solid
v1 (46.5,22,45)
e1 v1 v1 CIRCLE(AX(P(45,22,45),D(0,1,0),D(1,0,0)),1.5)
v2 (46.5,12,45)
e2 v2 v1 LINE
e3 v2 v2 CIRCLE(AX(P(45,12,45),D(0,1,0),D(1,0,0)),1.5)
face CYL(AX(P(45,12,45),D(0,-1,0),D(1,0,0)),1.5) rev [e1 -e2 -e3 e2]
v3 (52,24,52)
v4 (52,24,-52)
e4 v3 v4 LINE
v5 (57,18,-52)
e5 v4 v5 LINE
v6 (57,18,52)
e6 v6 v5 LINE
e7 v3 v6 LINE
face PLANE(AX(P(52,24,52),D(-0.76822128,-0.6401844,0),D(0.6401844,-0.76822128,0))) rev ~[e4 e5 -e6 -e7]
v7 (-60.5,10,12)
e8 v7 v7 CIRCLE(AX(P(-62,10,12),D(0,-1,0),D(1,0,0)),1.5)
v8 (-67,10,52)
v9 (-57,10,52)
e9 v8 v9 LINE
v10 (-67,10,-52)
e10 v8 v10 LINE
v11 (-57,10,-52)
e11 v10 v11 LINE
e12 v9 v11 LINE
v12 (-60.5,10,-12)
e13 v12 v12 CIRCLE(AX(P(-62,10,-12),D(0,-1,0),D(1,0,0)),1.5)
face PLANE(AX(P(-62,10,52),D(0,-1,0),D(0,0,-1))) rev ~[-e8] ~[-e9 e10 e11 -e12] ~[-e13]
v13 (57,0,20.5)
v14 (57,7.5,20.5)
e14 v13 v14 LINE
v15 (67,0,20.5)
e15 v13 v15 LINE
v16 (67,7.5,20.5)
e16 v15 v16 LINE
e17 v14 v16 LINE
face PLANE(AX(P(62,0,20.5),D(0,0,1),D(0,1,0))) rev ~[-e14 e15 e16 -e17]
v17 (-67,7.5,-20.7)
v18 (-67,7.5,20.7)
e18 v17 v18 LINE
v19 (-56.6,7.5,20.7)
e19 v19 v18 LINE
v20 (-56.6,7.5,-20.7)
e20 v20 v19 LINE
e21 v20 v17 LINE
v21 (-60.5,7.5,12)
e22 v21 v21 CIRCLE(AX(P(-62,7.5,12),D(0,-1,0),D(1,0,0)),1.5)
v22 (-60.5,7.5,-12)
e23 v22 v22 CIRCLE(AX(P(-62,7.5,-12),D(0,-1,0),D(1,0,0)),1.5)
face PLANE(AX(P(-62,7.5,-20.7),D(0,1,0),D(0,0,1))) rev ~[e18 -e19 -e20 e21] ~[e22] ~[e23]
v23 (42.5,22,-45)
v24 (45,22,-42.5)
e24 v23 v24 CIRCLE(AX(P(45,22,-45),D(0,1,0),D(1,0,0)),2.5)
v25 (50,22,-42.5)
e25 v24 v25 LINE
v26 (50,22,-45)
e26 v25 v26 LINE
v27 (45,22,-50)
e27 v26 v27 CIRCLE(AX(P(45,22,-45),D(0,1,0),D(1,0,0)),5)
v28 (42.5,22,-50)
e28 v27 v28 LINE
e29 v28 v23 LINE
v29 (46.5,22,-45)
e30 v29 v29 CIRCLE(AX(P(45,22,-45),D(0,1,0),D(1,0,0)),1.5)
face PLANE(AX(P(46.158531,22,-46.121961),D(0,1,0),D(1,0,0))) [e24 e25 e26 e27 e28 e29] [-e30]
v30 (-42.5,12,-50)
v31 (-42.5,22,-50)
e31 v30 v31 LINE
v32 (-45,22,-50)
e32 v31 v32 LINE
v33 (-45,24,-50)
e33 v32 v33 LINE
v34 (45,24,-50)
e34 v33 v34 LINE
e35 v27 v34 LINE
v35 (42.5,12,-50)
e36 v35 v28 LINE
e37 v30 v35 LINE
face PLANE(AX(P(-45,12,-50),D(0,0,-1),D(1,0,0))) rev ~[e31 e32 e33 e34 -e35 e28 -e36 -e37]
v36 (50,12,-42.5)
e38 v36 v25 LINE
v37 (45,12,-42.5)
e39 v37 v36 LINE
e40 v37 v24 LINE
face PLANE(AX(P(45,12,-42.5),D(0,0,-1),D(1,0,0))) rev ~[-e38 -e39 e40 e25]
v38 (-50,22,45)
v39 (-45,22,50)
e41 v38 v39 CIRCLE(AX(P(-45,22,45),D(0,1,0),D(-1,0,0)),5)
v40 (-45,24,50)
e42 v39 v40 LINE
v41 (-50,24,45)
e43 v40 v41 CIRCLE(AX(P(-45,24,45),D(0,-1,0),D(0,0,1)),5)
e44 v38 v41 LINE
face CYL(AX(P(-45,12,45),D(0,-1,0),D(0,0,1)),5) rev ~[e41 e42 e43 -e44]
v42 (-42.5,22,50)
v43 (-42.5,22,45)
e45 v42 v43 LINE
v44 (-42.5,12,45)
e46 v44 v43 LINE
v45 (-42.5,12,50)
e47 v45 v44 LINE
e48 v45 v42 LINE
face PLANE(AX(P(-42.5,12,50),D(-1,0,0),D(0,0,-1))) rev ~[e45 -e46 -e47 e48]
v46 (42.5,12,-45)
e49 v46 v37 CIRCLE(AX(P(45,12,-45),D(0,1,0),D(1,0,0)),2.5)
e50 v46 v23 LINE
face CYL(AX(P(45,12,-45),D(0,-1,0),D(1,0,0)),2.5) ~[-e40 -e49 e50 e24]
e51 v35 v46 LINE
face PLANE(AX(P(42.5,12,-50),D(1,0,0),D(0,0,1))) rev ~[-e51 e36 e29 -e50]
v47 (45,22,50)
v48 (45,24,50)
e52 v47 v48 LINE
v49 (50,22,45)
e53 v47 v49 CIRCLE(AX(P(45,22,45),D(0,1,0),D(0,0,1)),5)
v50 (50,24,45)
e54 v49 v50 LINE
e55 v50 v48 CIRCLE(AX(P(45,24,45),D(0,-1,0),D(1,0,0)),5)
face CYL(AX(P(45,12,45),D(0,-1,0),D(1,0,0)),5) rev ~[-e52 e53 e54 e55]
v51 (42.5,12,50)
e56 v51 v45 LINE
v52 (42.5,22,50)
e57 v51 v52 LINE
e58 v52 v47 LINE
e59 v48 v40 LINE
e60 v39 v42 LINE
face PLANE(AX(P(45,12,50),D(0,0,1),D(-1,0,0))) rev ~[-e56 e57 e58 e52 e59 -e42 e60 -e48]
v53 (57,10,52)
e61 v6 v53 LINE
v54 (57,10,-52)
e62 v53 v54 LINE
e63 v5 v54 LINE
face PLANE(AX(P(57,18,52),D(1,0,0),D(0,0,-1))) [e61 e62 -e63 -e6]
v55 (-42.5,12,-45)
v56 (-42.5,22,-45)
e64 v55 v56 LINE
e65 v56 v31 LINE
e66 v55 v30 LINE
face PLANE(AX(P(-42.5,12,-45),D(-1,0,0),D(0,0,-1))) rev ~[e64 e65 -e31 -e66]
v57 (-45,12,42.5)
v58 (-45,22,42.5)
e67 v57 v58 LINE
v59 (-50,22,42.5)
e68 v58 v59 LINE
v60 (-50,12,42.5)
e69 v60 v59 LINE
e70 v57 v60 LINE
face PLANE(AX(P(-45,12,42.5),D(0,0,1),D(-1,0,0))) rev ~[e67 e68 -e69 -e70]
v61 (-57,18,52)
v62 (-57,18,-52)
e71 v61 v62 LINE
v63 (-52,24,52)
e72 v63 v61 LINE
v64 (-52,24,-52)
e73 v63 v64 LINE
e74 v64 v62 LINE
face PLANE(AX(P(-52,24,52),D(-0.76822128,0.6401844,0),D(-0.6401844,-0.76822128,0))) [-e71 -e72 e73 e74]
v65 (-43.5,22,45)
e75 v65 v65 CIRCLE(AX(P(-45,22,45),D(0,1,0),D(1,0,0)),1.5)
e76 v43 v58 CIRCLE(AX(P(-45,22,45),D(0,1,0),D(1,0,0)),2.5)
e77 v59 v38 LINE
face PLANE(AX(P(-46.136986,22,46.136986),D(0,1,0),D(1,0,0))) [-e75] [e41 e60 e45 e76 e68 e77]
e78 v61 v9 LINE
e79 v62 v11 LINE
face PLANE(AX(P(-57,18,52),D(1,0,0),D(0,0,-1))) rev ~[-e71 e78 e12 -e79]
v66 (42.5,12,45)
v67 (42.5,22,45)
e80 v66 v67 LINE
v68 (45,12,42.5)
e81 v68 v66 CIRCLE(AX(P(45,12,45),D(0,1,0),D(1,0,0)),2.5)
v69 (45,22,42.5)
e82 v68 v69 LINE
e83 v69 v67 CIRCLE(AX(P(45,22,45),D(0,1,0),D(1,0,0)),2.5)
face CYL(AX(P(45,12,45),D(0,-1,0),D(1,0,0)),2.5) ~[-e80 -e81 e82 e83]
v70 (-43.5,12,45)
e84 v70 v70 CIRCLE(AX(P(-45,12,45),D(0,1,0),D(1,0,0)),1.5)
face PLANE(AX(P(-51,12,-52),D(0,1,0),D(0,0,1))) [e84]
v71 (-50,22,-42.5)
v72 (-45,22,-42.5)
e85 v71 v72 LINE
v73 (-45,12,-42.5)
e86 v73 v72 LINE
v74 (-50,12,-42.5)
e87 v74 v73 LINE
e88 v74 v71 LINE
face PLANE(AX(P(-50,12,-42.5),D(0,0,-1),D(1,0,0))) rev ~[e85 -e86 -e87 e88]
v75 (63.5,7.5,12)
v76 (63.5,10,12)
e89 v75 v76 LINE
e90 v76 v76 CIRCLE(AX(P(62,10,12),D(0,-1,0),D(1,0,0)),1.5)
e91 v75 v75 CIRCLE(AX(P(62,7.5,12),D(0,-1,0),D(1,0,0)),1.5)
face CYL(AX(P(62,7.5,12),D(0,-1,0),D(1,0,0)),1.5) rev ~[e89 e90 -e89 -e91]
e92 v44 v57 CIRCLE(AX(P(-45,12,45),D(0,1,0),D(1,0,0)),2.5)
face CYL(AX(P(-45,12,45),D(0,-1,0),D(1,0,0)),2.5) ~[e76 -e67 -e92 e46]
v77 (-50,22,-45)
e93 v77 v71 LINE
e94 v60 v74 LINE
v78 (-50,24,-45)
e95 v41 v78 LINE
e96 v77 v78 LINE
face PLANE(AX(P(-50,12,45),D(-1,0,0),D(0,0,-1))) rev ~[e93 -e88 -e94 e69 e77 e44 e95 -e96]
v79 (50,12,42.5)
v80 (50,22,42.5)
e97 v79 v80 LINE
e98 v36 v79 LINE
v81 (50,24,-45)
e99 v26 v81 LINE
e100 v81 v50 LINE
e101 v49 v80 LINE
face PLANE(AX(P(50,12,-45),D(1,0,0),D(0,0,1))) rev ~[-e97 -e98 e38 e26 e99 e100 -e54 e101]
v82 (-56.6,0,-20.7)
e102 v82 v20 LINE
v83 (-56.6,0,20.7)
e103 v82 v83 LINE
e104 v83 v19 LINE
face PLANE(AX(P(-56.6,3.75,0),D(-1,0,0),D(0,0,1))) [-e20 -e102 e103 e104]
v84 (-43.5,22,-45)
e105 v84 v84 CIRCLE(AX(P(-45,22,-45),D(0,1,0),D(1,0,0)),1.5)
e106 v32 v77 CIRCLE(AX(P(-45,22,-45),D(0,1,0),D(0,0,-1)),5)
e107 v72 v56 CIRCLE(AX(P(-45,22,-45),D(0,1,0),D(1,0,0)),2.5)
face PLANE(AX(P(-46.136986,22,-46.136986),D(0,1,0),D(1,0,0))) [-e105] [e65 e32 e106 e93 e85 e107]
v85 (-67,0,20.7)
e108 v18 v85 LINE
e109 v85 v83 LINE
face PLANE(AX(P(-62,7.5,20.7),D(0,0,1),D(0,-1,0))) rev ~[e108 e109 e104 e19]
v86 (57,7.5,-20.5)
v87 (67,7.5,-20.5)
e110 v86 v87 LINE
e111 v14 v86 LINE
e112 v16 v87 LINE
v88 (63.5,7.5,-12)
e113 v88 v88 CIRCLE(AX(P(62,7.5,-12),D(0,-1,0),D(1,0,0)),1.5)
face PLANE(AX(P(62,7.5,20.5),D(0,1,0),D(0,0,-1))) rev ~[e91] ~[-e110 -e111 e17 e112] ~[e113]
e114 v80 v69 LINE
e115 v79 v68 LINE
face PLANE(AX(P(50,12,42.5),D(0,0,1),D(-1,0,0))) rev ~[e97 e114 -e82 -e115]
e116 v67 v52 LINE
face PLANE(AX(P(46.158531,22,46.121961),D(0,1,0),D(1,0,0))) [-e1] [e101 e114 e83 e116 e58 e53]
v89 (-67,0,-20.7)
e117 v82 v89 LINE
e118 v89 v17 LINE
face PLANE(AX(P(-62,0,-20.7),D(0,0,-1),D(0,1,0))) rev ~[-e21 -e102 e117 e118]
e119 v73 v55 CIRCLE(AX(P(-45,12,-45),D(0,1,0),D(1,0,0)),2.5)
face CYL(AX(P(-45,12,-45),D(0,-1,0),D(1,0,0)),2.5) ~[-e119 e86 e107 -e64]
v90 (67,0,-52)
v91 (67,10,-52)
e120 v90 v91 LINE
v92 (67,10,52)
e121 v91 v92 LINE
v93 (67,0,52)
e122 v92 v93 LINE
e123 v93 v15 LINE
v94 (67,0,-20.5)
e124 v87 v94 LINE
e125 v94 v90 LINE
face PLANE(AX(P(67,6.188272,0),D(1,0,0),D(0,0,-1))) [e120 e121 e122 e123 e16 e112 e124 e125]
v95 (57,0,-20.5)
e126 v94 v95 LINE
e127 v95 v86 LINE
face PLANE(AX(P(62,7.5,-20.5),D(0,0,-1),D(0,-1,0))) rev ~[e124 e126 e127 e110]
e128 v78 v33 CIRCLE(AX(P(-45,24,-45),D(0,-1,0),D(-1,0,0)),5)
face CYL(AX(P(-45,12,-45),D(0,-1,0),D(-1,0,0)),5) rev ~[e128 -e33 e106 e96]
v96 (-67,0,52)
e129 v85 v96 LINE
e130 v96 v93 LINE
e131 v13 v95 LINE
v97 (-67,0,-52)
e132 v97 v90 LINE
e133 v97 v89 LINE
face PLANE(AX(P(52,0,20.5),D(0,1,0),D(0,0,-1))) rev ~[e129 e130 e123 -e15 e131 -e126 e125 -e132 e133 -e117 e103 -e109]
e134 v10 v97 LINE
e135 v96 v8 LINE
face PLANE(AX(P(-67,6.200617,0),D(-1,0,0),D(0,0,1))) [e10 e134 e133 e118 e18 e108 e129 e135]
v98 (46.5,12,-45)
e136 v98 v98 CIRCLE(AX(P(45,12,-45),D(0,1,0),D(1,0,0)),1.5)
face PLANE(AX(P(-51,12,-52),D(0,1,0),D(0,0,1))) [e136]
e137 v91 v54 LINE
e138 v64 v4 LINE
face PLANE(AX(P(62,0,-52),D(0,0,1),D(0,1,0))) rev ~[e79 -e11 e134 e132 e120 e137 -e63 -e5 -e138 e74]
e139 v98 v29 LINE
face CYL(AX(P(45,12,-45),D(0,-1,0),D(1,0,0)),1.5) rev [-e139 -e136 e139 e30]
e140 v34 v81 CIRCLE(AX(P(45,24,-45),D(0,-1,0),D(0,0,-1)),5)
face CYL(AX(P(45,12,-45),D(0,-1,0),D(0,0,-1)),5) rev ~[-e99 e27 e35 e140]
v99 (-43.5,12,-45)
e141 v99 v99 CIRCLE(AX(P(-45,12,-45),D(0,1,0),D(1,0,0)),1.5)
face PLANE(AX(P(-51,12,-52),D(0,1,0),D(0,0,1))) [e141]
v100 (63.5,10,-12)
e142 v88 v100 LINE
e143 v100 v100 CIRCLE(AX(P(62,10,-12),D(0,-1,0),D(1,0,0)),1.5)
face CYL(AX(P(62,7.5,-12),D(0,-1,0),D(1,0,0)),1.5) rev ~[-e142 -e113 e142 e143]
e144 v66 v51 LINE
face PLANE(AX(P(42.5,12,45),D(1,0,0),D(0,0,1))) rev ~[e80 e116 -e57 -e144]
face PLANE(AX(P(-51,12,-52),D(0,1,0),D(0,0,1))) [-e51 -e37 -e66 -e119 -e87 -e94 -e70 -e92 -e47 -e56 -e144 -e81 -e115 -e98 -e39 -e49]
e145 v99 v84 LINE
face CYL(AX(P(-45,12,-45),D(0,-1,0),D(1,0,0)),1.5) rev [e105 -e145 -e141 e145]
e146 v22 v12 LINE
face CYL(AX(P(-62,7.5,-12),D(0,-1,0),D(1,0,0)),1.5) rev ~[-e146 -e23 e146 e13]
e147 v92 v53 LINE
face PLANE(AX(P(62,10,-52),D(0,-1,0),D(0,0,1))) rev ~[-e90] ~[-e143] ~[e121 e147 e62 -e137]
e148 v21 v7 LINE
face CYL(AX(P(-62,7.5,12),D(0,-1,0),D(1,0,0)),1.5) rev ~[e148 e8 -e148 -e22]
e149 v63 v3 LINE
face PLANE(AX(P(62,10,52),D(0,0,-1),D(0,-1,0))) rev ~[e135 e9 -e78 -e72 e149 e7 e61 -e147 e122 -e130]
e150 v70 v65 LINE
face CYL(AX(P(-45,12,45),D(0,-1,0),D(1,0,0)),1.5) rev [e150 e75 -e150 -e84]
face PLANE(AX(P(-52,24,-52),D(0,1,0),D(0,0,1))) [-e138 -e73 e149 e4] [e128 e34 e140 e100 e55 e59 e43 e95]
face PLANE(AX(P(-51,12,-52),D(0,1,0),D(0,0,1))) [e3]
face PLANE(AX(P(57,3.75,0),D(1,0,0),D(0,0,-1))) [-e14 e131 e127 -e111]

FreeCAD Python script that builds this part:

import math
import FreeCAD as App
import Part
import Sketcher

V = App.Vector


def add_polygon(sketch, points):
    """Adds a closed chain of lines whose ends are joined by coincident constraints."""
    first, n = sketch.GeometryCount, len(points)
    for a, b in zip(points, points[1:] + points[:1]):
        sketch.addGeometry(Part.LineSegment(App.Vector(*a, 0), App.Vector(*b, 0)), False)
    for i in range(n):
        sketch.addConstraint(Sketcher.Constraint("Coincident", first + i, 2, first + (i + 1) % n, 1))

doc = App.newDocument("Part")
params = doc.addObject("Spreadsheet::Sheet", "Params")
for row, (alias, value) in enumerate([
    ("sketch1_radius", "5 mm"),
    ("sketch1_width", "92 mm"),
    ("pad1_length", "12 mm"),
    ("sketch2_radius", "5 mm"),
    ("pad2_length", "12 mm"),
    ("sketch3_radius", "5 mm"),
    ("pad3_length", "12 mm"),
    ("sketch4_radius", "5 mm"),
    ("pad4_length", "12 mm"),
    ("sketch5_width", "102 mm"),
    ("sketch5_height", "12 mm"),
    ("pad5_length", "1 mm"),
    ("sketch6_width", "12 mm"),
    ("sketch6_height", "103 mm"),
    ("pad6_length", "1 mm"),
    ("sketch7_width", "103 mm"),
    ("sketch7_height", "12 mm"),
    ("pad7_length", "1 mm"),
    ("sketch8_width", "12 mm"),
    ("sketch8_height", "104 mm"),
    ("pad8_length", "1 mm"),
    ("sketch9_radius", "5 mm"),
    ("sketch9_width", "104 mm"),
    ("sketch9_width2", "90 mm"),
    ("pad9_length", "12 mm"),
    ("sketch10_width", "24 mm"),
    ("sketch10_height", "104 mm"),
    ("pad10_length", "10 mm"),
    ("sketch11_width", "10 mm"),
    ("sketch11_width2", "5 mm"),
    ("sketch11_height", "6 mm"),
    ("pocket1_length", "104 mm"),
    ("sketch12_width", "24 mm"),
    ("sketch12_height", "104 mm"),
    ("pad11_length", "10 mm"),
    ("sketch13_width", "10 mm"),
    ("sketch13_width2", "5 mm"),
    ("sketch13_height", "6 mm"),
    ("pocket2_length", "104 mm"),
    ("sketch14_width", "10 mm"),
    ("sketch14_height", "41 mm"),
    ("sketch14_width2", "10.4 mm"),
    ("sketch14_height2", "41.4 mm"),
    ("pocket3_length", "7.5 mm"),
    ("sketch15_width", "5 mm"),
    ("sketch15_height", "104 mm"),
    ("pocket4_length", "8 mm"),
    ("sketch16_width", "5 mm"),
    ("sketch16_height", "104 mm"),
    ("pocket5_length", "8 mm"),
    ("sketch17_width", "10 mm"),
    ("sketch17_height", "104 mm"),
    ("sketch17_width2", "7.5 mm"),
    ("sketch17_height2", "31.3 mm"),
    ("pad12_length", "5 mm"),
    ("sketch18_width", "7.5 mm"),
    ("sketch18_height", "41.4 mm"),
    ("pad13_length", "5 mm"),
    ("sketch19_width", "10 mm"),
    ("sketch19_height", "41 mm"),
    ("sketch19_height2", "104 mm"),
    ("sketch19_width2", "7.5 mm"),
    ("pad14_length", "5 mm"),
    ("sketch20_height", "41 mm"),
    ("sketch20_width", "7.5 mm"),
    ("pad15_length", "5 mm"),
    ("sketch21_diameter", "3 mm"),
    ("pocket6_length", "2.5 mm"),
    ("sketch22_diameter", "3 mm"),
    ("pocket7_length", "2.5 mm"),
    ("sketch23_diameter", "3 mm"),
    ("sketch23_radius", "5 mm"),
    ("sketch23_radius2", "2.5 mm"),
    ("pad16_length", "10 mm"),
], start=1):
    params.set(f"A{row}", alias)
    params.set(f"B{row}", "=" + value)
    params.setAlias(f"B{row}", alias)

body = doc.addObject("PartDesign::Body", "Body")

# Sketch on XZ plane
sketch1 = body.newObject("Sketcher::SketchObject", "Sketch")
sketch1.AttachmentSupport = (doc.getObject("XZ_Plane"), [""])
sketch1.MapMode = "FlatFace"
sketch1.addGeometry([
    Part.LineSegment(V(46, -51, 0), V(-46, -51, 0)),  # 0
    Part.ArcOfCircle(Part.Circle(V(-46, -46, 0), V(0, 0, 1), 5), math.radians(180), math.radians(270)),  # 1
    Part.LineSegment(V(-51, -46, 0), V(-51, 46, 0)),  # 2
    Part.ArcOfCircle(Part.Circle(V(-46, 46, 0), V(0, 0, 1), 5), math.radians(90), math.radians(180)),  # 3
    Part.LineSegment(V(-46, 51, 0), V(46, 51, 0)),  # 4
    Part.ArcOfCircle(Part.Circle(V(46, 46, 0), V(0, 0, 1), 5), math.radians(0), math.radians(90)),  # 5
    Part.LineSegment(V(51, 46, 0), V(51, -46, 0)),  # 6
    Part.ArcOfCircle(Part.Circle(V(46, -46, 0), V(0, 0, 1), 5), math.radians(-90), math.radians(0)),  # 7
], False)
sketch1.addConstraint([
    Sketcher.Constraint("Tangent", 0, 2, 1, 2),
    Sketcher.Constraint("Tangent", 1, 1, 2, 1),
    Sketcher.Constraint("Tangent", 2, 2, 3, 2),
    Sketcher.Constraint("Tangent", 3, 1, 4, 1),
    Sketcher.Constraint("Tangent", 4, 2, 5, 2),
    Sketcher.Constraint("Tangent", 5, 1, 6, 1),
    Sketcher.Constraint("Tangent", 6, 2, 7, 2),
    Sketcher.Constraint("Tangent", 7, 1, 0, 1),
    Sketcher.Constraint("Horizontal", 0),
    Sketcher.Constraint("Vertical", 2),
    Sketcher.Constraint("Horizontal", 4),
    Sketcher.Constraint("Vertical", 6),
    Sketcher.Constraint("Equal", 1, 3),
    Sketcher.Constraint("Equal", 3, 5),
    Sketcher.Constraint("Equal", 5, 7),
    Sketcher.Constraint("Symmetric", 1, 3, 5, 3, -1, 1),
    Sketcher.Constraint("Equal", 4, 2),
    Sketcher.Constraint("Radius", 1, 5.0),
    Sketcher.Constraint("DistanceX", 0, 2, 0, 1, 92.0),
])
sketch1.setExpression("Constraints[17]", "Params.sketch1_radius")
sketch1.setExpression("Constraints[18]", "Params.sketch1_width")
pad1 = body.newObject("PartDesign::Pad", "Pad")
pad1.Profile = sketch1
pad1.setExpression("Length", "Params.pad1_length")
pad1.Reversed = True

# Sketch on XZ plane
sketch2 = body.newObject("Sketcher::SketchObject", "Sketch001")
sketch2.AttachmentSupport = (doc.getObject("XZ_Plane"), [""])
sketch2.MapMode = "FlatFace"
sketch2.addGeometry([
    Part.LineSegment(V(51, 51, 0), V(46, 51, 0)),
    Part.ArcOfCircle(Part.Circle(V(46, 46, 0), V(0, 0, 1), 5), math.radians(0), math.radians(90)),
    Part.LineSegment(V(51, 46, 0), V(51, 51, 0)),
], False)
sketch2.addConstraint([
    Sketcher.Constraint("Tangent", 0, 2, 1, 2),
    Sketcher.Constraint("Tangent", 1, 1, 2, 1),
    Sketcher.Constraint("Coincident", 2, 2, 0, 1),
    Sketcher.Constraint("Horizontal", 0),
    Sketcher.Constraint("Vertical", 2),
    Sketcher.Constraint("Radius", 1, 5.0),
    Sketcher.Constraint("DistanceX", -1, 1, 1, 3, 46.0),
    Sketcher.Constraint("DistanceY", -1, 1, 1, 3, 46.0),
])
sketch2.setExpression("Constraints[5]", "Params.sketch2_radius")
pad2 = body.newObject("PartDesign::Pad", "Pad001")
pad2.Profile = sketch2
pad2.setExpression("Length", "Params.pad2_length")
pad2.Reversed = True

# Sketch on XZ plane
sketch3 = body.newObject("Sketcher::SketchObject", "Sketch002")
sketch3.AttachmentSupport = (doc.getObject("XZ_Plane"), [""])
sketch3.MapMode = "FlatFace"
sketch3.addGeometry([
    Part.LineSegment(V(-51, -46, 0), V(-51, -51, 0)),
    Part.LineSegment(V(-51, -51, 0), V(-46, -51, 0)),
    Part.ArcOfCircle(Part.Circle(V(-46, -46, 0), V(0, 0, 1), 5), math.radians(180), math.radians(270)),
], False)
sketch3.addConstraint([
    Sketcher.Constraint("Coincident", 0, 2, 1, 1),
    Sketcher.Constraint("Tangent", 1, 2, 2, 2),
    Sketcher.Constraint("Tangent", 2, 1, 0, 1),
    Sketcher.Constraint("Vertical", 0),
    Sketcher.Constraint("Horizontal", 1),
    Sketcher.Constraint("Radius", 2, 5.0),
    Sketcher.Constraint("DistanceX", 2, 3, -1, 1, 46.0),
    Sketcher.Constraint("DistanceY", 2, 3, -1, 1, 46.0),
])
sketch3.setExpression("Constraints[5]", "Params.sketch3_radius")
pad3 = body.newObject("PartDesign::Pad", "Pad002")
pad3.Profile = sketch3
pad3.setExpression("Length", "Params.pad3_length")
pad3.Reversed = True

# Sketch on XZ plane
sketch4 = body.newObject("Sketcher::SketchObject", "Sketch003")
sketch4.AttachmentSupport = (doc.getObject("XZ_Plane"), [""])
sketch4.MapMode = "FlatFace"
sketch4.addGeometry([
    Part.LineSegment(V(-46, 51, 0), V(-51, 51, 0)),  # 0
    Part.LineSegment(V(-51, 51, 0), V(-51, 46, 0)),  # 1
    Part.ArcOfCircle(Part.Circle(V(-46, 46, 0), V(0, 0, 1), 5), math.radians(90), math.radians(180)),  # 2
    Part.LineSegment(V(46, -51, 0), V(51, -51, 0)),  # 3
    Part.LineSegment(V(51, -51, 0), V(51, -46, 0)),  # 4
    Part.ArcOfCircle(Part.Circle(V(46, -46, 0), V(0, 0, 1), 5), math.radians(-90), math.radians(0)),  # 5
], False)
sketch4.addConstraint([
    Sketcher.Constraint("Coincident", 0, 2, 1, 1),
    Sketcher.Constraint("Tangent", 1, 2, 2, 2),
    Sketcher.Constraint("Tangent", 2, 1, 0, 1),
    Sketcher.Constraint("Coincident", 3, 2, 4, 1),
    Sketcher.Constraint("Tangent", 4, 2, 5, 2),
    Sketcher.Constraint("Tangent", 5, 1, 3, 1),
    Sketcher.Constraint("Horizontal", 0),
    Sketcher.Constraint("Vertical", 1),
    Sketcher.Constraint("Horizontal", 3),
    Sketcher.Constraint("Vertical", 4),
    Sketcher.Constraint("Equal", 2, 5),
    Sketcher.Constraint("Symmetric", 2, 3, 5, 3, -1, 1),
    Sketcher.Constraint("Radius", 2, 5.0),
    Sketcher.Constraint("DistanceX", 2, 3, -1, 1, 46.0),
    Sketcher.Constraint("DistanceY", -1, 1, 2, 3, 46.0),
])
sketch4.setExpression("Constraints[12]", "Params.sketch4_radius")
pad4 = body.newObject("PartDesign::Pad", "Pad003")
pad4.Profile = sketch4
pad4.setExpression("Length", "Params.pad4_length")
pad4.Reversed = True

# Sketch on XY plane
sketch5 = body.newObject("Sketcher::SketchObject", "Sketch004")
sketch5.AttachmentSupport = (doc.getObject("XY_Plane"), [""])
sketch5.MapMode = "FlatFace"
sketch5.AttachmentOffset = App.Placement(V(0, 0, 51), App.Rotation())
add_polygon(sketch5, [(-51, 12), (-51, 0), (51, 0), (51, 12)])  # lines 0-3
sketch5.addConstraint([
    Sketcher.Constraint("Vertical", 0),
    Sketcher.Constraint("Horizontal", 1),
    Sketcher.Constraint("Vertical", 2),
    Sketcher.Constraint("Horizontal", 3),
    Sketcher.Constraint("Symmetric", 0, 2, 1, 2, -1, 1),
    Sketcher.Constraint("DistanceX", 1, 1, 1, 2, 102.0),
    Sketcher.Constraint("DistanceY", 0, 2, 0, 1, 12.0),
])
sketch5.setExpression("Constraints[9]", "Params.sketch5_width")
sketch5.setExpression("Constraints[10]", "Params.sketch5_height")
pad5 = body.newObject("PartDesign::Pad", "Pad004")
pad5.Profile = sketch5
pad5.setExpression("Length", "Params.pad5_length")

# Sketch on YZ plane
sketch6 = body.newObject("Sketcher::SketchObject", "Sketch005")
sketch6.AttachmentSupport = (doc.getObject("YZ_Plane"), [""])
sketch6.MapMode = "FlatFace"
sketch6.AttachmentOffset = App.Placement(V(0, 0, 51), App.Rotation())
add_polygon(sketch6, [(12, 52), (0, 52), (0, -51), (12, -51)])  # lines 0-3
sketch6.addConstraint([
    Sketcher.Constraint("Horizontal", 0),
    Sketcher.Constraint("Vertical", 1),
    Sketcher.Constraint("Horizontal", 2),
    Sketcher.Constraint("Vertical", 3),
    Sketcher.Constraint("PointOnObject", 0, 2, -2),
    Sketcher.Constraint("DistanceX", 0, 2, 0, 1, 12.0),
    Sketcher.Constraint("DistanceY", 1, 2, 1, 1, 103.0),
    Sketcher.Constraint("DistanceY", -1, 1, 0, 2, 52.0),
])
sketch6.setExpression("Constraints[9]", "Params.sketch6_width")
sketch6.setExpression("Constraints[10]", "Params.sketch6_height")
pad6 = body.newObject("PartDesign::Pad", "Pad005")
pad6.Profile = sketch6
pad6.setExpression("Length", "Params.pad6_length")

# Sketch on XY plane
sketch7 = body.newObject("Sketcher::SketchObject", "Sketch006")
sketch7.AttachmentSupport = (doc.getObject("XY_Plane"), [""])
sketch7.MapMode = "FlatFace"
sketch7.AttachmentOffset = App.Placement(V(0, 0, -51), App.Rotation())
add_polygon(sketch7, [(52, 12), (52, 0), (-51, 0), (-51, 12)])  # lines 0-3
sketch7.addConstraint([
    Sketcher.Constraint("Vertical", 0),
    Sketcher.Constraint("Horizontal", 1),
    Sketcher.Constraint("Vertical", 2),
    Sketcher.Constraint("Horizontal", 3),
    Sketcher.Constraint("PointOnObject", 0, 2, -1),
    Sketcher.Constraint("DistanceX", 1, 2, 1, 1, 103.0),
    Sketcher.Constraint("DistanceY", 0, 2, 0, 1, 12.0),
    Sketcher.Constraint("DistanceX", -1, 1, 0, 2, 52.0),
])
sketch7.setExpression("Constraints[9]", "Params.sketch7_width")
sketch7.setExpression("Constraints[10]", "Params.sketch7_height")
pad7 = body.newObject("PartDesign::Pad", "Pad006")
pad7.Profile = sketch7
pad7.setExpression("Length", "Params.pad7_length")
pad7.Reversed = True

# Sketch on YZ plane
sketch8 = body.newObject("Sketcher::SketchObject", "Sketch007")
sketch8.AttachmentSupport = (doc.getObject("YZ_Plane"), [""])
sketch8.MapMode = "FlatFace"
sketch8.AttachmentOffset = App.Placement(V(0, 0, -51), App.Rotation())
add_polygon(sketch8, [(12, -52), (0, -52), (0, 52), (12, 52)])  # lines 0-3
sketch8.addConstraint([
    Sketcher.Constraint("Horizontal", 0),
    Sketcher.Constraint("Vertical", 1),
    Sketcher.Constraint("Horizontal", 2),
    Sketcher.Constraint("Vertical", 3),
    Sketcher.Constraint("Symmetric", 0, 2, 1, 2, -1, 1),
    Sketcher.Constraint("DistanceX", 0, 2, 0, 1, 12.0),
    Sketcher.Constraint("DistanceY", 1, 1, 1, 2, 104.0),
])
sketch8.setExpression("Constraints[9]", "Params.sketch8_width")
sketch8.setExpression("Constraints[10]", "Params.sketch8_height")
pad8 = body.newObject("PartDesign::Pad", "Pad007")
pad8.Profile = sketch8
pad8.setExpression("Length", "Params.pad8_length")
pad8.Reversed = True

# Sketch on XZ plane
sketch9 = body.newObject("Sketcher::SketchObject", "Sketch008")
sketch9.AttachmentSupport = (doc.getObject("XZ_Plane"), [""])
sketch9.MapMode = "FlatFace"
sketch9.AttachmentOffset = App.Placement(V(0, 0, -12), App.Rotation())
add_polygon(sketch9, [(-52, -52), (-52, 52), (52, 52), (52, -52)])  # lines 0-3
sketch9.addGeometry(Part.ArcOfCircle(Part.Circle(V(-45, -45, 0), V(0, 0, 1), 5), math.radians(180), math.radians(270)), False)  # 4
sketch9.addGeometry(Part.LineSegment(V(-45, -50, 0), V(45, -50, 0)), False)  # 5
sketch9.addGeometry(Part.ArcOfCircle(Part.Circle(V(45, -45, 0), V(0, 0, 1), 5), math.radians(-90), math.radians(0)), False)  # 6
sketch9.addGeometry(Part.LineSegment(V(50, -45, 0), V(50, 45, 0)), False)  # 7
sketch9.addGeometry(Part.ArcOfCircle(Part.Circle(V(45, 45, 0), V(0, 0, 1), 5), math.radians(0), math.radians(90)), False)  # 8
sketch9.addGeometry(Part.LineSegment(V(45, 50, 0), V(-45, 50, 0)), False)  # 9
sketch9.addGeometry(Part.ArcOfCircle(Part.Circle(V(-45, 45, 0), V(0, 0, 1), 5), math.radians(90), math.radians(180)), False)  # 10
sketch9.addGeometry(Part.LineSegment(V(-50, 45, 0), V(-50, -45, 0)), False)  # 11
sketch9.addConstraint([
    Sketcher.Constraint("Tangent", 4, 2, 5, 1),
    Sketcher.Constraint("Tangent", 5, 2, 6, 1),
    Sketcher.Constraint("Tangent", 6, 2, 7, 1),
    Sketcher.Constraint("Tangent", 7, 2, 8, 1),
    Sketcher.Constraint("Tangent", 8, 2, 9, 1),
    Sketcher.Constraint("Tangent", 9, 2, 10, 1),
    Sketcher.Constraint("Tangent", 10, 2, 11, 1),
    Sketcher.Constraint("Tangent", 11, 2, 4, 1),
    Sketcher.Constraint("Vertical", 0),
    Sketcher.Constraint("Horizontal", 1),
    Sketcher.Constraint("Vertical", 2),
    Sketcher.Constraint("Horizontal", 3),
    Sketcher.Constraint("Horizontal", 5),
    Sketcher.Constraint("Vertical", 7),
    Sketcher.Constraint("Horizontal", 9),
    Sketcher.Constraint("Vertical", 11),
    Sketcher.Constraint("Equal", 4, 6),
    Sketcher.Constraint("Equal", 6, 8),
    Sketcher.Constraint("Equal", 8, 10),
    Sketcher.Constraint("Symmetric", 4, 3, 8, 3, -1, 1),
    Sketcher.Constraint("Symmetric", 0, 2, 2, 2, -1, 1),
    Sketcher.Constraint("Equal", 3, 0),
    Sketcher.Constraint("Equal", 9, 7),
    Sketcher.Constraint("Radius", 4, 5.0),
    Sketcher.Constraint("DistanceX", 1, 1, 1, 2, 104.0),
    Sketcher.Constraint("DistanceX", 5, 1, 5, 2, 90.0),
])
sketch9.setExpression("Constraints[27]", "Params.sketch9_radius")
sketch9.setExpression("Constraints[28]", "Params.sketch9_width")
sketch9.setExpression("Constraints[29]", "Params.sketch9_width2")
pad9 = body.newObject("PartDesign::Pad", "Pad008")
pad9.Profile = sketch9
pad9.setExpression("Length", "Params.pad9_length")
pad9.Reversed = True

# Sketch on YZ plane
sketch10 = body.newObject("Sketcher::SketchObject", "Sketch009")
sketch10.AttachmentSupport = (doc.getObject("YZ_Plane"), [""])
sketch10.MapMode = "FlatFace"
sketch10.AttachmentOffset = App.Placement(V(0, 0, 52), App.Rotation())
add_polygon(sketch10, [(24, 52), (0, 52), (0, -52), (24, -52)])  # lines 0-3
sketch10.addConstraint([
    Sketcher.Constraint("Horizontal", 0),
    Sketcher.Constraint("Vertical", 1),
    Sketcher.Constraint("Horizontal", 2),
    Sketcher.Constraint("Vertical", 3),
    Sketcher.Constraint("Symmetric", 0, 2, 1, 2, -1, 1),
    Sketcher.Constraint("DistanceX", 0, 2, 0, 1, 24.0),
    Sketcher.Constraint("DistanceY", 1, 2, 1, 1, 104.0),
])
sketch10.setExpression("Constraints[9]", "Params.sketch10_width")
sketch10.setExpression("Constraints[10]", "Params.sketch10_height")
pad10 = body.newObject("PartDesign::Pad", "Pad009")
pad10.Profile = sketch10
pad10.setExpression("Length", "Params.pad10_length")

# Sketch on XY plane
sketch11 = body.newObject("Sketcher::SketchObject", "Sketch010")
sketch11.AttachmentSupport = (doc.getObject("XY_Plane"), [""])
sketch11.MapMode = "FlatFace"
sketch11.AttachmentOffset = App.Placement(V(0, 0, 52), App.Rotation())
add_polygon(sketch11, [(62, 24), (52, 24), (57, 18), (62, 18)])  # lines 0-3
sketch11.addConstraint([
    Sketcher.Constraint("Horizontal", 0),
    Sketcher.Constraint("Horizontal", 2),
    Sketcher.Constraint("Vertical", 3),
    Sketcher.Constraint("DistanceX", 0, 2, 0, 1, 10.0),
    Sketcher.Constraint("DistanceX", 2, 1, 2, 2, 5.0),
    Sketcher.Constraint("DistanceY", 3, 1, 3, 2, 6.0),
    Sketcher.Constraint("DistanceX", -1, 1, 0, 2, 52.0),
    Sketcher.Constraint("DistanceY", -1, 1, 0, 2, 24.0),
])
sketch11.setExpression("Constraints[7]", "Params.sketch11_width")
sketch11.setExpression("Constraints[8]", "Params.sketch11_width2")
sketch11.setExpression("Constraints[9]", "Params.sketch11_height")
pocket1 = body.newObject("PartDesign::Pocket", "Pocket")
pocket1.Profile = sketch11
pocket1.setExpression("Length", "Params.pocket1_length")

# Sketch on YZ plane
sketch12 = body.newObject("Sketcher::SketchObject", "Sketch011")
sketch12.AttachmentSupport = (doc.getObject("YZ_Plane"), [""])
sketch12.MapMode = "FlatFace"
sketch12.AttachmentOffset = App.Placement(V(0, 0, -52), App.Rotation())
add_polygon(sketch12, [(24, -52), (0, -52), (0, 52), (24, 52)])  # lines 0-3
sketch12.addConstraint([
    Sketcher.Constraint("Horizontal", 0),
    Sketcher.Constraint("Vertical", 1),
    Sketcher.Constraint("Horizontal", 2),
    Sketcher.Constraint("Vertical", 3),
    Sketcher.Constraint("Symmetric", 0, 2, 1, 2, -1, 1),
    Sketcher.Constraint("DistanceX", 0, 2, 0, 1, 24.0),
    Sketcher.Constraint("DistanceY", 1, 1, 1, 2, 104.0),
])
sketch12.setExpression("Constraints[9]", "Params.sketch12_width")
sketch12.setExpression("Constraints[10]", "Params.sketch12_height")
pad11 = body.newObject("PartDesign::Pad", "Pad010")
pad11.Profile = sketch12
pad11.setExpression("Length", "Params.pad11_length")
pad11.Reversed = True

# Sketch on XY plane
sketch13 = body.newObject("Sketcher::SketchObject", "Sketch012")
sketch13.AttachmentSupport = (doc.getObject("XY_Plane"), [""])
sketch13.MapMode = "FlatFace"
sketch13.AttachmentOffset = App.Placement(V(0, 0, 52), App.Rotation())
add_polygon(sketch13, [(-52, 24), (-62, 24), (-62, 18), (-57, 18)])  # lines 0-3
sketch13.addConstraint([
    Sketcher.Constraint("Horizontal", 0),
    Sketcher.Constraint("Vertical", 1),
    Sketcher.Constraint("Horizontal", 2),
    Sketcher.Constraint("DistanceX", 0, 2, 0, 1, 10.0),
    Sketcher.Constraint("DistanceX", 2, 1, 2, 2, 5.0),
    Sketcher.Constraint("DistanceY", 1, 2, 1, 1, 6.0),
    Sketcher.Constraint("DistanceX", 0, 2, -1, 1, 62.0),
    Sketcher.Constraint("DistanceY", -1, 1, 0, 2, 24.0),
])
sketch13.setExpression("Constraints[7]", "Params.sketch13_width")
sketch13.setExpression("Constraints[8]", "Params.sketch13_width2")
sketch13.setExpression("Constraints[9]", "Params.sketch13_height")
pocket2 = body.newObject("PartDesign::Pocket", "Pocket001")
pocket2.Profile = sketch13
pocket2.setExpression("Length", "Params.pocket2_length")

# Sketch on XZ plane
sketch14 = body.newObject("Sketcher::SketchObject", "Sketch013")
sketch14.AttachmentSupport = (doc.getObject("XZ_Plane"), [""])
sketch14.MapMode = "FlatFace"
add_polygon(sketch14, [(-62, 21), (-62, -21), (-52, -21), (-52, 21)])  # lines 0-3
add_polygon(sketch14, [(52, 20), (52, -20), (62, -20), (62, 20)])  # lines 4-7
sketch14.addConstraint([
    Sketcher.Constraint("Vertical", 0),
    Sketcher.Constraint("Horizontal", 1),
    Sketcher.Constraint("Vertical", 2),
    Sketcher.Constraint("Horizontal", 3),
    Sketcher.Constraint("Vertical", 4),
    Sketcher.Constraint("Horizontal", 5),
    Sketcher.Constraint("Vertical", 6),
    Sketcher.Constraint("Horizontal", 7),
    Sketcher.Constraint("DistanceX", 5, 1, 5, 2, 10.0),
    Sketcher.Constraint("DistanceY", 4, 2, 4, 1, 41.0),
    Sketcher.Constraint("DistanceX", 1, 1, 1, 2, 10.4),
    Sketcher.Constraint("DistanceY", 0, 2, 0, 1, 41.4),
    Sketcher.Constraint("DistanceX", 0, 2, -1, 1, 62.0),
    Sketcher.Constraint("DistanceX", -1, 1, 4, 2, 52.0),
    Sketcher.Constraint("DistanceY", 0, 2, -1, 1, 20.7),
    Sketcher.Constraint("DistanceY", 4, 2, -1, 1, 20.5),
])
sketch14.setExpression("Constraints[16]", "Params.sketch14_width")
sketch14.setExpression("Constraints[17]", "Params.sketch14_height")
sketch14.setExpression("Constraints[18]", "Params.sketch14_width2")
sketch14.setExpression("Constraints[19]", "Params.sketch14_height2")
pocket3 = body.newObject("PartDesign::Pocket", "Pocket002")
pocket3.Profile = sketch14
pocket3.setExpression("Length", "Params.pocket3_length")

# Sketch on XZ plane
sketch15 = body.newObject("Sketcher::SketchObject", "Sketch014")
sketch15.AttachmentSupport = (doc.getObject("XZ_Plane"), [""])
sketch15.MapMode = "FlatFace"
sketch15.AttachmentOffset = App.Placement(V(0, 0, -18), App.Rotation())
add_polygon(sketch15, [(57, -52), (57, 52), (62, 52), (62, -52)])  # lines 0-3
sketch15.addConstraint([
    Sketcher.Constraint("Vertical", 0),
    Sketcher.Constraint("Horizontal", 1),
    Sketcher.Constraint("Vertical", 2),
    Sketcher.Constraint("Horizontal", 3),
    Sketcher.Constraint("DistanceX", 1, 1, 1, 2, 5.0),
    Sketcher.Constraint("DistanceY", 0, 1, 0, 2, 104.0),
    Sketcher.Constraint("DistanceX", -1, 1, 0, 2, 57.0),
    Sketcher.Constraint("DistanceY", -1, 1, 0, 2, 52.0),
])
sketch15.setExpression("Constraints[8]", "Params.sketch15_width")
sketch15.setExpression("Constraints[9]", "Params.sketch15_height")
pocket4 = body.newObject("PartDesign::Pocket", "Pocket003")
pocket4.Profile = sketch15
pocket4.setExpression("Length", "Params.pocket4_length")
pocket4.Reversed = True

# Sketch on XZ plane
sketch16 = body.newObject("Sketcher::SketchObject", "Sketch015")
sketch16.AttachmentSupport = (doc.getObject("XZ_Plane"), [""])
sketch16.MapMode = "FlatFace"
sketch16.AttachmentOffset = App.Placement(V(0, 0, -18), App.Rotation())
add_polygon(sketch16, [(-62, -52), (-62, 52), (-57, 52), (-57, -52)])  # lines 0-3
sketch16.addConstraint([
    Sketcher.Constraint("Vertical", 0),
    Sketcher.Constraint("Horizontal", 1),
    Sketcher.Constraint("Vertical", 2),
    Sketcher.Constraint("Horizontal", 3),
    Sketcher.Constraint("DistanceX", 1, 1, 1, 2, 5.0),
    Sketcher.Constraint("DistanceY", 0, 1, 0, 2, 104.0),
    Sketcher.Constraint("DistanceX", 0, 2, -1, 1, 62.0),
    Sketcher.Constraint("DistanceY", -1, 1, 0, 2, 52.0),
])
sketch16.setExpression("Constraints[8]", "Params.sketch16_width")
sketch16.setExpression("Constraints[9]", "Params.sketch16_height")
pocket5 = body.newObject("PartDesign::Pocket", "Pocket004")
pocket5.Profile = sketch16
pocket5.setExpression("Length", "Params.pocket5_length")
pocket5.Reversed = True

# Sketch on YZ plane
sketch17 = body.newObject("Sketcher::SketchObject", "Sketch016")
sketch17.AttachmentSupport = (doc.getObject("YZ_Plane"), [""])
sketch17.MapMode = "FlatFace"
sketch17.AttachmentOffset = App.Placement(V(0, 0, -62), App.Rotation())
add_polygon(sketch17, [(10, -52), (0, -52), (0, -21), (8, -21), (8, 21), (0, 21), (0, 52), (10, 52)])  # lines 0-7
sketch17.addConstraint([
    Sketcher.Constraint("Horizontal", 0),
    Sketcher.Constraint("Vertical", 1),
    Sketcher.Constraint("Horizontal", 2),
    Sketcher.Constraint("Vertical", 3),
    Sketcher.Constraint("Horizontal", 4),
    Sketcher.Constraint("Vertical", 5),
    Sketcher.Constraint("Horizontal", 6),
    Sketcher.Constraint("Vertical", 7),
    Sketcher.Constraint("Symmetric", 1, 2, 4, 2, -1, 1),
    Sketcher.Constraint("Symmetric", 0, 2, 5, 2, -1),
    Sketcher.Constraint("DistanceX", 0, 2, 0, 1, 10.0),
    Sketcher.Constraint("DistanceY", 7, 2, 7, 1, 104.0),
    Sketcher.Constraint("DistanceX", 2, 1, 2, 2, 7.5),
    Sketcher.Constraint("DistanceY", 1, 1, 1, 2, 31.3),
])
sketch17.setExpression("Constraints[18]", "Params.sketch17_width")
sketch17.setExpression("Constraints[19]", "Params.sketch17_height")
sketch17.setExpression("Constraints[20]", "Params.sketch17_width2")
sketch17.setExpression("Constraints[21]", "Params.sketch17_height2")
pad12 = body.newObject("PartDesign::Pad", "Pad011")
pad12.Profile = sketch17
pad12.setExpression("Length", "Params.pad12_length")
pad12.Reversed = True

# Sketch on YZ plane
sketch18 = body.newObject("Sketcher::SketchObject", "Sketch017")
sketch18.AttachmentSupport = (doc.getObject("YZ_Plane"), [""])
sketch18.MapMode = "FlatFace"
sketch18.AttachmentOffset = App.Placement(V(0, 0, -51.6), App.Rotation())
add_polygon(sketch18, [(8, -21), (0, -21), (0, 21), (8, 21)])  # lines 0-3
sketch18.addConstraint([
    Sketcher.Constraint("Horizontal", 0),
    Sketcher.Constraint("Vertical", 1),
    Sketcher.Constraint("Horizontal", 2),
    Sketcher.Constraint("Vertical", 3),
    Sketcher.Constraint("Symmetric", 0, 2, 1, 2, -1, 1),
    Sketcher.Constraint("DistanceX", 0, 2, 0, 1, 7.5),
    Sketcher.Constraint("DistanceY", 1, 1, 1, 2, 41.4),
])
sketch18.setExpression("Constraints[9]", "Params.sketch18_width")
sketch18.setExpression("Constraints[10]", "Params.sketch18_height")
pad13 = body.newObject("PartDesign::Pad", "Pad012")
pad13.Profile = sketch18
pad13.setExpression("Length", "Params.pad13_length")
pad13.Reversed = True

# Sketch on YZ plane
sketch19 = body.newObject("Sketcher::SketchObject", "Sketch018")
sketch19.AttachmentSupport = (doc.getObject("YZ_Plane"), [""])
sketch19.MapMode = "FlatFace"
sketch19.AttachmentOffset = App.Placement(V(0, 0, 62), App.Rotation())
add_polygon(sketch19, [(10, 52), (0, 52), (0, 20), (8, 20), (8, -20), (0, -20), (0, -52), (10, -52)])  # lines 0-7
sketch19.addConstraint([
    Sketcher.Constraint("Horizontal", 0),
    Sketcher.Constraint("Vertical", 1),
    Sketcher.Constraint("Horizontal", 2),
    Sketcher.Constraint("Vertical", 3),
    Sketcher.Constraint("Horizontal", 4),
    Sketcher.Constraint("Vertical", 5),
    Sketcher.Constraint("Horizontal", 6),
    Sketcher.Constraint("Vertical", 7),
    Sketcher.Constraint("Symmetric", 1, 2, 4, 2, -1, 1),
    Sketcher.Constraint("Symmetric", 0, 2, 5, 2, -1),
    Sketcher.Constraint("DistanceX", 0, 2, 0, 1, 10.0),
    Sketcher.Constraint("DistanceY", 3, 2, 3, 1, 41.0),
    Sketcher.Constraint("DistanceY", 7, 1, 7, 2, 104.0),
    Sketcher.Constraint("DistanceX", 2, 1, 2, 2, 7.5),
])
sketch19.setExpression("Constraints[18]", "Params.sketch19_width")
sketch19.setExpression("Constraints[19]", "Params.sketch19_height")
sketch19.setExpression("Constraints[20]", "Params.sketch19_height2")
sketch19.setExpression("Constraints[21]", "Params.sketch19_width2")
pad14 = body.newObject("PartDesign::Pad", "Pad013")
pad14.Profile = sketch19
pad14.setExpression("Length", "Params.pad14_length")

# Sketch on YZ plane
sketch20 = body.newObject("Sketcher::SketchObject", "Sketch019")
sketch20.AttachmentSupport = (doc.getObject("YZ_Plane"), [""])
sketch20.MapMode = "FlatFace"
sketch20.AttachmentOffset = App.Placement(V(0, 0, 52), App.Rotation())
add_polygon(sketch20, [(8, 20), (0, 20), (0, -20), (8, -20)])  # lines 0-3
sketch20.addConstraint([
    Sketcher.Constraint("Horizontal", 0),
    Sketcher.Constraint("Vertical", 1),
    Sketcher.Constraint("Horizontal", 2),
    Sketcher.Constraint("Vertical", 3),
    Sketcher.Constraint("Symmetric", 0, 2, 1, 2, -1, 1),
    Sketcher.Constraint("DistanceY", 1, 2, 1, 1, 41.0),
    Sketcher.Constraint("DistanceX", 0, 2, 0, 1, 7.5),
])
sketch20.setExpression("Constraints[9]", "Params.sketch20_height")
sketch20.setExpression("Constraints[10]", "Params.sketch20_width")
pad15 = body.newObject("PartDesign::Pad", "Pad014")
pad15.Profile = sketch20
pad15.setExpression("Length", "Params.pad15_length")

# Sketch on XZ plane
sketch21 = body.newObject("Sketcher::SketchObject", "Sketch020")
sketch21.AttachmentSupport = (doc.getObject("XZ_Plane"), [""])
sketch21.MapMode = "FlatFace"
sketch21.AttachmentOffset = App.Placement(V(0, 0, -7.5), App.Rotation())
sketch21.addGeometry([
    Part.Circle(V(62, 12, 0), V(0, 0, 1), 1.5),
    Part.Circle(V(62, -12, 0), V(0, 0, 1), 1.5),
], False)
sketch21.addConstraint([
    Sketcher.Constraint("Equal", 0, 1),
    Sketcher.Constraint("Symmetric", 0, 3, 1, 3, -1),
    Sketcher.Constraint("Diameter", 0, 3.0),
    Sketcher.Constraint("DistanceX", -1, 1, 0, 3, 62.0),
    Sketcher.Constraint("DistanceY", -1, 1, 0, 3, 12.0),
])
sketch21.setExpression("Constraints[2]", "Params.sketch21_diameter")
pocket6 = body.newObject("PartDesign::Pocket", "Pocket005")
pocket6.Profile = sketch21
pocket6.setExpression("Length", "Params.pocket6_length")

# Sketch on XZ plane
sketch22 = body.newObject("Sketcher::SketchObject", "Sketch021")
sketch22.AttachmentSupport = (doc.getObject("XZ_Plane"), [""])
sketch22.MapMode = "FlatFace"
sketch22.AttachmentOffset = App.Placement(V(0, 0, -7.5), App.Rotation())
sketch22.addGeometry([
    Part.Circle(V(-62, 12, 0), V(0, 0, 1), 1.5),
    Part.Circle(V(-62, -12, 0), V(0, 0, 1), 1.5),
], False)
sketch22.addConstraint([
    Sketcher.Constraint("Equal", 0, 1),
    Sketcher.Constraint("Symmetric", 0, 3, 1, 3, -1),
    Sketcher.Constraint("Diameter", 0, 3.0),
    Sketcher.Constraint("DistanceX", 0, 3, -1, 1, 62.0),
    Sketcher.Constraint("DistanceY", -1, 1, 0, 3, 12.0),
])
sketch22.setExpression("Constraints[2]", "Params.sketch22_diameter")
pocket7 = body.newObject("PartDesign::Pocket", "Pocket006")
pocket7.Profile = sketch22
pocket7.setExpression("Length", "Params.pocket7_length")

# Sketch on XZ plane
sketch23 = body.newObject("Sketcher::SketchObject", "Sketch022")
sketch23.AttachmentSupport = (doc.getObject("XZ_Plane"), [""])
sketch23.MapMode = "FlatFace"
sketch23.AttachmentOffset = App.Placement(V(0, 0, -12), App.Rotation())
sketch23.addGeometry([
    Part.LineSegment(V(-42.5, -50, 0), V(-45, -50, 0)),  # 0
    Part.ArcOfCircle(Part.Circle(V(-45, -45, 0), V(0, 0, 1), 5), math.radians(180), math.radians(270)),  # 1
    Part.LineSegment(V(-50, -45, 0), V(-50, -42.5, 0)),  # 2
    Part.LineSegment(V(-50, -42.5, 0), V(-45, -42.5, 0)),  # 3
    Part.ArcOfCircle(Part.Circle(V(-45, -45, 0), V(0, 0, 1), 2.5), math.radians(0), math.radians(90)),  # 4
    Part.LineSegment(V(-42.5, -45, 0), V(-42.5, -50, 0)),  # 5
    Part.Circle(V(-45, -45, 0), V(0, 0, 1), 1.5),  # 6
    Part.LineSegment(V(45, -50, 0), V(42.5, -50, 0)),  # 7
    Part.LineSegment(V(42.5, -50, 0), V(42.5, -45, 0)),  # 8
    Part.ArcOfCircle(Part.Circle(V(45, -45, 0), V(0, 0, 1), 2.5), math.radians(90), math.radians(180)),  # 9
    Part.LineSegment(V(45, -42.5, 0), V(50, -42.5, 0)),  # 10
    Part.LineSegment(V(50, -42.5, 0), V(50, -45, 0)),  # 11
    Part.ArcOfCircle(Part.Circle(V(45, -45, 0), V(0, 0, 1), 5), math.radians(-90), math.radians(0)),  # 12
    Part.Circle(V(45, -45, 0), V(0, 0, 1), 1.5),  # 13
    Part.LineSegment(V(-45, 42.5, 0), V(-50, 42.5, 0)),  # 14
    Part.LineSegment(V(-50, 42.5, 0), V(-50, 45, 0)),  # 15
    Part.ArcOfCircle(Part.Circle(V(-45, 45, 0), V(0, 0, 1), 5), math.radians(90), math.radians(180)),  # 16
    Part.LineSegment(V(-45, 50, 0), V(-42.5, 50, 0)),  # 17
    Part.LineSegment(V(-42.5, 50, 0), V(-42.5, 45, 0)),  # 18
    Part.ArcOfCircle(Part.Circle(V(-45, 45, 0), V(0, 0, 1), 2.5), math.radians(-90), math.radians(0)),  # 19
    Part.Circle(V(-45, 45, 0), V(0, 0, 1), 1.5),  # 20
    Part.LineSegment(V(50, 45, 0), V(50, 42.5, 0)),  # 21
    Part.LineSegment(V(50, 42.5, 0), V(45, 42.5, 0)),  # 22
    Part.ArcOfCircle(Part.Circle(V(45, 45, 0), V(0, 0, 1), 2.5), math.radians(180), math.radians(270)),  # 23
    Part.LineSegment(V(42.5, 45, 0), V(42.5, 50, 0)),  # 24
    Part.LineSegment(V(42.5, 50, 0), V(45, 50, 0)),  # 25
    Part.ArcOfCircle(Part.Circle(V(45, 45, 0), V(0, 0, 1), 5), math.radians(0), math.radians(90)),  # 26
    Part.Circle(V(45, 45, 0), V(0, 0, 1), 1.5),  # 27
], False)
sketch23.addConstraint([
    Sketcher.Constraint("Tangent", 0, 2, 1, 2),
    Sketcher.Constraint("Tangent", 1, 1, 2, 1),
    Sketcher.Constraint("Coincident", 2, 2, 3, 1),
    Sketcher.Constraint("Tangent", 3, 2, 4, 2),
    Sketcher.Constraint("Tangent", 4, 1, 5, 1),
    Sketcher.Constraint("Coincident", 5, 2, 0, 1),
    Sketcher.Constraint("Coincident", 7, 2, 8, 1),
    Sketcher.Constraint("Tangent", 8, 2, 9, 2),
    Sketcher.Constraint("Tangent", 9, 1, 10, 1),
    Sketcher.Constraint("Coincident", 10, 2, 11, 1),
    Sketcher.Constraint("Tangent", 11, 2, 12, 2),
    Sketcher.Constraint("Tangent", 12, 1, 7, 1),
    Sketcher.Constraint("Coincident", 14, 2, 15, 1),
    Sketcher.Constraint("Tangent", 15, 2, 16, 2),
    Sketcher.Constraint("Tangent", 16, 1, 17, 1),
    Sketcher.Constraint("Coincident", 17, 2, 18, 1),
    Sketcher.Constraint("Tangent", 18, 2, 19, 2),
    Sketcher.Constraint("Tangent", 19, 1, 14, 1),
    Sketcher.Constraint("Coincident", 21, 2, 22, 1),
    Sketcher.Constraint("Tangent", 22, 2, 23, 2),
    Sketcher.Constraint("Tangent", 23, 1, 24, 1),
    Sketcher.Constraint("Coincident", 24, 2, 25, 1),
    Sketcher.Constraint("Tangent", 25, 2, 26, 2),
    Sketcher.Constraint("Tangent", 26, 1, 21, 1),
    Sketcher.Constraint("Horizontal", 0),
    Sketcher.Constraint("Vertical", 2),
    Sketcher.Constraint("Horizontal", 3),
    Sketcher.Constraint("Vertical", 5),
    Sketcher.Constraint("Horizontal", 7),
    Sketcher.Constraint("Vertical", 8),
    Sketcher.Constraint("Horizontal", 10),
    Sketcher.Constraint("Vertical", 11),
    Sketcher.Constraint("Horizontal", 14),
    Sketcher.Constraint("Vertical", 15),
    Sketcher.Constraint("Horizontal", 17),
    Sketcher.Constraint("Vertical", 18),
    Sketcher.Constraint("Vertical", 21),
    Sketcher.Constraint("Horizontal", 22),
    Sketcher.Constraint("Vertical", 24),
    Sketcher.Constraint("Horizontal", 25),
    Sketcher.Constraint("Coincident", 4, 3, 1, 3),
    Sketcher.Constraint("Coincident", 6, 3, 1, 3),
    Sketcher.Constraint("Coincident", 12, 3, 9, 3),
    Sketcher.Constraint("Coincident", 13, 3, 9, 3),
    Sketcher.Constraint("Coincident", 19, 3, 16, 3),
    Sketcher.Constraint("Coincident", 20, 3, 16, 3),
    Sketcher.Constraint("Coincident", 26, 3, 23, 3),
    Sketcher.Constraint("Coincident", 27, 3, 23, 3),
    Sketcher.Constraint("Equal", 4, 9),
    Sketcher.Constraint("Equal", 1, 12),
    Sketcher.Constraint("Equal", 6, 13),
    Sketcher.Constraint("Equal", 12, 16),
    Sketcher.Constraint("Equal", 9, 19),
    Sketcher.Constraint("Equal", 13, 20),
    Sketcher.Constraint("Equal", 19, 23),
    Sketcher.Constraint("Equal", 16, 26),
    Sketcher.Constraint("Equal", 20, 27),
    Sketcher.Constraint("Symmetric", 9, 3, 16, 3, -1, 1),
    Sketcher.Constraint("Symmetric", 1, 3, 23, 3, -1, 1),
    Sketcher.Constraint("Symmetric", 1, 3, 9, 3, -2),
    Sketcher.Constraint("Diameter", 6, 3.0),
    Sketcher.Constraint("Radius", 1, 5.0),
    Sketcher.Constraint("Radius", 4, 2.5),
    Sketcher.Constraint("DistanceX", 1, 3, -1, 1, 45.0),
    Sketcher.Constraint("DistanceY", 1, 3, -1, 1, 45.0),
])
sketch23.setExpression("Constraints[60]", "Params.sketch23_diameter")
sketch23.setExpression("Constraints[61]", "Params.sketch23_radius")
sketch23.setExpression("Constraints[62]", "Params.sketch23_radius2")
pad16 = body.newObject("PartDesign::Pad", "Pad015")
pad16.Profile = sketch23
pad16.setExpression("Length", "Params.pad16_length")
pad16.Reversed = True

doc.recompute()
